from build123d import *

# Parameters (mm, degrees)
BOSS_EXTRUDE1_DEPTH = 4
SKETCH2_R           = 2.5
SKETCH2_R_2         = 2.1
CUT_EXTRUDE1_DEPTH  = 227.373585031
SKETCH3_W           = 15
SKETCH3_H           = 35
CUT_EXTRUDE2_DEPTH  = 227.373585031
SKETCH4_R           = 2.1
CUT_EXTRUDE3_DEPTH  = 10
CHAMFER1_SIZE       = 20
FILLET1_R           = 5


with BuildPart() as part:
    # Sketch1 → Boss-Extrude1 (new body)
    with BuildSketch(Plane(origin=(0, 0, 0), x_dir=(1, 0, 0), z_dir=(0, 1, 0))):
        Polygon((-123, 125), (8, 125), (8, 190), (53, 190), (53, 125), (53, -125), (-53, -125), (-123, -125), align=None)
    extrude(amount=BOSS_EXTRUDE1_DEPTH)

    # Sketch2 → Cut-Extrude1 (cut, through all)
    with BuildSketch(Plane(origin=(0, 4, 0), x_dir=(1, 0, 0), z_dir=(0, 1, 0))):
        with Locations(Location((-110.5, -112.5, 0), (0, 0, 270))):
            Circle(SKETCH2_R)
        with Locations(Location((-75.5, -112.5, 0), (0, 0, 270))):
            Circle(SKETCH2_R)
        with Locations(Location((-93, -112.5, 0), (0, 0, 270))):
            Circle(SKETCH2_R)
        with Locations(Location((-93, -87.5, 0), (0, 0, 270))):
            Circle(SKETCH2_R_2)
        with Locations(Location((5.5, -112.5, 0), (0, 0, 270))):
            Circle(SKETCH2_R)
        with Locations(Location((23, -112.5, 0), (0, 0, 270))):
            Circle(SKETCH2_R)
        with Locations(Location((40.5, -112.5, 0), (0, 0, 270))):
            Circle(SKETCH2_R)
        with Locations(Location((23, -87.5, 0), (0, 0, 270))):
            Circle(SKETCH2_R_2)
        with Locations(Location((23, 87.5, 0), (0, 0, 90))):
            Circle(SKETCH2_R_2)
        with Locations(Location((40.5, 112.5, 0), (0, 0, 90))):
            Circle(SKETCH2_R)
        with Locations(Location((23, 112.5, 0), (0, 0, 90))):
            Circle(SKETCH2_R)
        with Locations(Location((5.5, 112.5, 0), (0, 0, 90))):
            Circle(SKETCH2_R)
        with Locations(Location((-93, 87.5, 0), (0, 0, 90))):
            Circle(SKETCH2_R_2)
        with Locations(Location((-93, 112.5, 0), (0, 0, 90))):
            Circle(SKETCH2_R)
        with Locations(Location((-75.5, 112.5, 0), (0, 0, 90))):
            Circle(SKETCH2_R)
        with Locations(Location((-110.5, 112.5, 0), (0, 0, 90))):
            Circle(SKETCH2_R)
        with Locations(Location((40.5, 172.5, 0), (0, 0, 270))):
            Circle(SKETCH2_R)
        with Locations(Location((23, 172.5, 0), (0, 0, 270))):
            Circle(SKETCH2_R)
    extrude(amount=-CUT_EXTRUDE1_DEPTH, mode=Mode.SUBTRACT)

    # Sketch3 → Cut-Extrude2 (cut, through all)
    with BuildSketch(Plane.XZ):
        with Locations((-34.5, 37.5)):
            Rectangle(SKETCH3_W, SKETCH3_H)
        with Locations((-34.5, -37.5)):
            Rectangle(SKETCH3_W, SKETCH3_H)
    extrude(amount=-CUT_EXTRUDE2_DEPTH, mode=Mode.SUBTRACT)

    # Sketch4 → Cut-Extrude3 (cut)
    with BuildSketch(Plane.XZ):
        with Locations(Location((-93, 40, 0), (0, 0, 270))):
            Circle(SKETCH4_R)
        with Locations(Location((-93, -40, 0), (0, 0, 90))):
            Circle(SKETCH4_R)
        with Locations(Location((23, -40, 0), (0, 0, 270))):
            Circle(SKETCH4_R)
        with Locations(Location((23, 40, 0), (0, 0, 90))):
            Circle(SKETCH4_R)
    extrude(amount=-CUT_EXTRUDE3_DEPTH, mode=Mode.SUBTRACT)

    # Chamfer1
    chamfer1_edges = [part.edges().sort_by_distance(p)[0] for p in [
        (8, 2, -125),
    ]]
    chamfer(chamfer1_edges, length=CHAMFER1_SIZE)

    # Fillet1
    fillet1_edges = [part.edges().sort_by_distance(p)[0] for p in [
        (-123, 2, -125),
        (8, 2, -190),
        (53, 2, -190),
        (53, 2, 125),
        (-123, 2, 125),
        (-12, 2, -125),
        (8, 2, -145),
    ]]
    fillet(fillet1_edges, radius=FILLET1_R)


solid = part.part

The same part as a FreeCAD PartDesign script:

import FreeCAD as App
import Part
import Sketcher
from FreeCAD import Vector
Q = App.Units.Quantity


def edges_at(feature, points):
    """Names of the edges that pass closest to the given points."""
    edges = feature.Shape.Edges
    near = lambda p: min(range(len(edges)), key=lambda i: edges[i].distToShape(Part.Vertex(*p))[0])
    return sorted({f"Edge{near(p) + 1}" for p in points})

doc = App.newDocument("Part")
body = doc.addObject("PartDesign::Body", "Body")

sketch1 = doc.addObject("Sketcher::SketchObject", "Sketch")
body.addObject(sketch1)
sketch1.AttachmentSupport = (doc.XZ_Plane, [""])
sketch1.MapMode = "FlatFace"
sketch1.addGeometry(Part.LineSegment(Vector(8, -125, 0), Vector(-123, -125, 0)), False)
sketch1.addGeometry(Part.LineSegment(Vector(-123, -125, 0), Vector(-123, 125, 0)), False)
sketch1.addGeometry(Part.LineSegment(Vector(-123, 125, 0), Vector(53, 125, 0)), False)
sketch1.addGeometry(Part.LineSegment(Vector(53, 125, 0), Vector(53, -190, 0)), False)
sketch1.addGeometry(Part.LineSegment(Vector(53, -190, 0), Vector(8, -190, 0)), False)
sketch1.addGeometry(Part.LineSegment(Vector(8, -190, 0), Vector(8, -125, 0)), False)
sketch1.addConstraint(Sketcher.Constraint("Coincident", 0, 2, 1, 1))
sketch1.addConstraint(Sketcher.Constraint("Coincident", 1, 2, 2, 1))
sketch1.addConstraint(Sketcher.Constraint("Coincident", 2, 2, 3, 1))
sketch1.addConstraint(Sketcher.Constraint("Coincident", 3, 2, 4, 1))
sketch1.addConstraint(Sketcher.Constraint("Coincident", 4, 2, 5, 1))
sketch1.addConstraint(Sketcher.Constraint("Coincident", 5, 2, 0, 1))
sketch1.addConstraint(Sketcher.Constraint("Horizontal", 0))
sketch1.addConstraint(Sketcher.Constraint("Vertical", 1))
sketch1.addConstraint(Sketcher.Constraint("Horizontal", 2))
sketch1.addConstraint(Sketcher.Constraint("Vertical", 3))
sketch1.addConstraint(Sketcher.Constraint("Horizontal", 4))
sketch1.addConstraint(Sketcher.Constraint("Vertical", 5))
sketch1.addConstraint(Sketcher.Constraint("DistanceX", 0, 2, 0, 1, Q("131 mm")))
sketch1.addConstraint(Sketcher.Constraint("DistanceX", 2, 1, 2, 2, Q("176 mm")))
sketch1.addConstraint(Sketcher.Constraint("DistanceY", 1, 1, 1, 2, Q("250 mm")))
sketch1.addConstraint(Sketcher.Constraint("DistanceY", 3, 2, 3, 1, Q("315 mm")))
sketch1.addConstraint(Sketcher.Constraint("DistanceX", 0, 2, -1, 1, Q("123 mm")))
sketch1.addConstraint(Sketcher.Constraint("DistanceY", 0, 2, -1, 1, Q("125 mm")))
pad1 = doc.addObject("PartDesign::Pad", "Pad")
body.addObject(pad1)
pad1.Profile = sketch1
pad1.Length = 4
pad1.Reversed = True

sketch2 = doc.addObject("Sketcher::SketchObject", "Sketch001")
body.addObject(sketch2)
sketch2.AttachmentSupport = (doc.XZ_Plane, [""])
sketch2.MapMode = "FlatFace"
sketch2.AttachmentOffset = App.Placement(Vector(0, 0, -4), App.Rotation())
sketch2.addGeometry(Part.Circle(Vector(-110.5, 112.5, 0), Vector(0, 0, 1), 2.5), False)
sketch2.addGeometry(Part.Circle(Vector(-75.5, 112.5, 0), Vector(0, 0, 1), 2.5), False)
sketch2.addGeometry(Part.Circle(Vector(-93, 112.5, 0), Vector(0, 0, 1), 2.5), False)
sketch2.addGeometry(Part.Circle(Vector(-93, 87.5, 0), Vector(0, 0, 1), 2.1), False)
sketch2.addGeometry(Part.Circle(Vector(5.5, 112.5, 0), Vector(0, 0, 1), 2.5), False)
sketch2.addGeometry(Part.Circle(Vector(23, 112.5, 0), Vector(0, 0, 1), 2.5), False)
sketch2.addGeometry(Part.Circle(Vector(40.5, 112.5, 0), Vector(0, 0, 1), 2.5), False)
sketch2.addGeometry(Part.Circle(Vector(23, 87.5, 0), Vector(0, 0, 1), 2.1), False)
sketch2.addGeometry(Part.Circle(Vector(23, -87.5, 0), Vector(0, 0, 1), 2.1), False)
sketch2.addGeometry(Part.Circle(Vector(40.5, -112.5, 0), Vector(0, 0, 1), 2.5), False)
sketch2.addGeometry(Part.Circle(Vector(23, -112.5, 0), Vector(0, 0, 1), 2.5), False)
sketch2.addGeometry(Part.Circle(Vector(5.5, -112.5, 0), Vector(0, 0, 1), 2.5), False)
sketch2.addGeometry(Part.Circle(Vector(-93, -87.5, 0), Vector(0, 0, 1), 2.1), False)
sketch2.addGeometry(Part.Circle(Vector(-93, -112.5, 0), Vector(0, 0, 1), 2.5), False)
sketch2.addGeometry(Part.Circle(Vector(-75.5, -112.5, 0), Vector(0, 0, 1), 2.5), False)
sketch2.addGeometry(Part.Circle(Vector(-110.5, -112.5, 0), Vector(0, 0, 1), 2.5), False)
sketch2.addGeometry(Part.Circle(Vector(40.5, -172.5, 0), Vector(0, 0, 1), 2.5), False)
sketch2.addGeometry(Part.Circle(Vector(23, -172.5, 0), Vector(0, 0, 1), 2.5), False)
sketch2.addConstraint(Sketcher.Constraint("Equal", 0, 1))
sketch2.addConstraint(Sketcher.Constraint("Equal", 1, 2))
sketch2.addConstraint(Sketcher.Constraint("Equal", 2, 4))
sketch2.addConstraint(Sketcher.Constraint("Equal", 4, 5))
sketch2.addConstraint(Sketcher.Constraint("Equal", 5, 6))
sketch2.addConstraint(Sketcher.Constraint("Equal", 3, 7))
sketch2.addConstraint(Sketcher.Constraint("Equal", 7, 8))
sketch2.addConstraint(Sketcher.Constraint("Equal", 6, 9))
sketch2.addConstraint(Sketcher.Constraint("Equal", 9, 10))
sketch2.addConstraint(Sketcher.Constraint("Equal", 10, 11))
sketch2.addConstraint(Sketcher.Constraint("Equal", 8, 12))
sketch2.addConstraint(Sketcher.Constraint("Equal", 11, 13))
sketch2.addConstraint(Sketcher.Constraint("Equal", 13, 14))
sketch2.addConstraint(Sketcher.Constraint("Equal", 14, 15))
sketch2.addConstraint(Sketcher.Constraint("Equal", 15, 16))
sketch2.addConstraint(Sketcher.Constraint("Equal", 16, 17))
sketch2.addConstraint(Sketcher.Constraint("Symmetric", 7, 3, 8, 3, -1))
sketch2.addConstraint(Sketcher.Constraint("Symmetric", 6, 3, 9, 3, -1))
sketch2.addConstraint(Sketcher.Constraint("Symmetric", 5, 3, 10, 3, -1))
sketch2.addConstraint(Sketcher.Constraint("Symmetric", 4, 3, 11, 3, -1))
sketch2.addConstraint(Sketcher.Constraint("Symmetric", 3, 3, 12, 3, -1))
sketch2.addConstraint(Sketcher.Constraint("Symmetric", 2, 3, 13, 3, -1))
sketch2.addConstraint(Sketcher.Constraint("Symmetric", 1, 3, 14, 3, -1))
sketch2.addConstraint(Sketcher.Constraint("Symmetric", 0, 3, 15, 3, -1))
sketch2.addConstraint(Sketcher.Constraint("Horizontal", 0, 3, 1, 3))
sketch2.addConstraint(Sketcher.Constraint("Horizontal", 1, 3, 2, 3))
sketch2.addConstraint(Sketcher.Constraint("Horizontal", 2, 3, 4, 3))
sketch2.addConstraint(Sketcher.Constraint("Horizontal", 4, 3, 5, 3))
sketch2.addConstraint(Sketcher.Constraint("Horizontal", 5, 3, 6, 3))
sketch2.addConstraint(Sketcher.Constraint("Horizontal", 3, 3, 7, 3))
sketch2.addConstraint(Sketcher.Constraint("Horizontal", 16, 3, 17, 3))
sketch2.addConstraint(Sketcher.Constraint("Vertical", 2, 3, 3, 3))
sketch2.addConstraint(Sketcher.Constraint("Vertical", 5, 3, 7, 3))
sketch2.addConstraint(Sketcher.Constraint("Vertical", 9, 3, 16, 3))
sketch2.addConstraint(Sketcher.Constraint("Vertical", 10, 3, 17, 3))
sketch2.addConstraint(Sketcher.Constraint("Diameter", 0, Q("5 mm")))
sketch2.addConstraint(Sketcher.Constraint("Diameter", 3, Q("4.2 mm")))
sketch2.addConstraint(Sketcher.Constraint("DistanceX", 2, 3, -1, 1, Q("93 mm")))
sketch2.addConstraint(Sketcher.Constraint("DistanceX", -1, 1, 5, 3, Q("23 mm")))
sketch2.addConstraint(Sketcher.Constraint("DistanceX", 0, 3, 1, 3, Q("35 mm")))
sketch2.addConstraint(Sketcher.Constraint("DistanceY", 3, 3, 2, 3, Q("25 mm")))
sketch2.addConstraint(Sketcher.Constraint("DistanceX", 1, 3, 4, 3, Q("81 mm")))
sketch2.addConstraint(Sketcher.Constraint("DistanceX", 4, 3, 6, 3, Q("35 mm")))
sketch2.addConstraint(Sketcher.Constraint("DistanceY", 8, 3, 7, 3, Q("175 mm")))
sketch2.addConstraint(Sketcher.Constraint("DistanceY", 16, 3, 9, 3, Q("60 mm")))
sketch2.addConstraint(Sketcher.Constraint("DistanceX", 0, 3, -1, 1, Q("110.5 mm")))
pocket1 = doc.addObject("PartDesign::Pocket", "Pocket")
body.addObject(pocket1)
pocket1.Profile = sketch2
pocket1.Type = "ThroughAll"
pocket1.Reversed = True

sketch3 = doc.addObject("Sketcher::SketchObject", "Sketch002")
body.addObject(sketch3)
sketch3.AttachmentSupport = (doc.XZ_Plane, [""])
sketch3.MapMode = "FlatFace"
sketch3.addGeometry(Part.LineSegment(Vector(-42, 55, 0), Vector(-42, 20, 0)), False)
sketch3.addGeometry(Part.LineSegment(Vector(-42, 20, 0), Vector(-27, 20, 0)), False)
sketch3.addGeometry(Part.LineSegment(Vector(-27, 20, 0), Vector(-27, 55, 0)), False)
sketch3.addGeometry(Part.LineSegment(Vector(-27, 55, 0), Vector(-42, 55, 0)), False)
sketch3.addGeometry(Part.LineSegment(Vector(-42, -20, 0), Vector(-42, -55, 0)), False)
sketch3.addGeometry(Part.LineSegment(Vector(-42, -55, 0), Vector(-27, -55, 0)), False)
sketch3.addGeometry(Part.LineSegment(Vector(-27, -55, 0), Vector(-27, -20, 0)), False)
sketch3.addGeometry(Part.LineSegment(Vector(-27, -20, 0), Vector(-42, -20, 0)), False)
sketch3.addConstraint(Sketcher.Constraint("Coincident", 0, 2, 1, 1))
sketch3.addConstraint(Sketcher.Constraint("Coincident", 1, 2, 2, 1))
sketch3.addConstraint(Sketcher.Constraint("Coincident", 2, 2, 3, 1))
sketch3.addConstraint(Sketcher.Constraint("Coincident", 3, 2, 0, 1))
sketch3.addConstraint(Sketcher.Constraint("Coincident", 4, 2, 5, 1))
sketch3.addConstraint(Sketcher.Constraint("Coincident", 5, 2, 6, 1))
sketch3.addConstraint(Sketcher.Constraint("Coincident", 6, 2, 7, 1))
sketch3.addConstraint(Sketcher.Constraint("Coincident", 7, 2, 4, 1))
sketch3.addConstraint(Sketcher.Constraint("Vertical", 0))
sketch3.addConstraint(Sketcher.Constraint("Horizontal", 1))
sketch3.addConstraint(Sketcher.Constraint("Vertical", 2))
sketch3.addConstraint(Sketcher.Constraint("Horizontal", 3))
sketch3.addConstraint(Sketcher.Constraint("Vertical", 4))
sketch3.addConstraint(Sketcher.Constraint("Horizontal", 5))
sketch3.addConstraint(Sketcher.Constraint("Vertical", 6))
sketch3.addConstraint(Sketcher.Constraint("Horizontal", 7))
sketch3.addConstraint(Sketcher.Constraint("Symmetric", 3, 2, 4, 2, -1))
sketch3.addConstraint(Sketcher.Constraint("Symmetric", 1, 2, 6, 2, -1))
sketch3.addConstraint(Sketcher.Constraint("DistanceX", 1, 1, 1, 2, Q("15 mm")))
sketch3.addConstraint(Sketcher.Constraint("DistanceY", 0, 2, 0, 1, Q("35 mm")))
sketch3.addConstraint(Sketcher.Constraint("DistanceX", 0, 2, -1, 1, Q("42 mm")))
sketch3.addConstraint(Sketcher.Constraint("DistanceY", -1, 1, 0, 2, Q("20 mm")))
pocket2 = doc.addObject("PartDesign::Pocket", "Pocket001")
body.addObject(pocket2)
pocket2.Profile = sketch3
pocket2.Type = "ThroughAll"

sketch4 = doc.addObject("Sketcher::SketchObject", "Sketch003")
body.addObject(sketch4)
sketch4.AttachmentSupport = (doc.XZ_Plane, [""])
sketch4.MapMode = "FlatFace"
sketch4.addGeometry(Part.Circle(Vector(-93, 40, 0), Vector(0, 0, 1), 2.1), False)
sketch4.addGeometry(Part.Circle(Vector(-93, -40, 0), Vector(0, 0, 1), 2.1), False)
sketch4.addGeometry(Part.Circle(Vector(23, -40, 0), Vector(0, 0, 1), 2.1), False)
sketch4.addGeometry(Part.Circle(Vector(23, 40, 0), Vector(0, 0, 1), 2.1), False)
sketch4.addConstraint(Sketcher.Constraint("Equal", 0, 1))
sketch4.addConstraint(Sketcher.Constraint("Equal", 1, 2))
sketch4.addConstraint(Sketcher.Constraint("Equal", 2, 3))
sketch4.addConstraint(Sketcher.Constraint("Symmetric", 0, 3, 1, 3, -1))
sketch4.addConstraint(Sketcher.Constraint("Symmetric", 2, 3, 3, 3, -1))
sketch4.addConstraint(Sketcher.Constraint("Horizontal", 1, 3, 2, 3))
sketch4.addConstraint(Sketcher.Constraint("Diameter", 0, Q("4.2 mm")))
sketch4.addConstraint(Sketcher.Constraint("DistanceX", 0, 3, -1, 1, Q("93 mm")))
sketch4.addConstraint(Sketcher.Constraint("DistanceY", -1, 1, 0, 3, Q("40 mm")))
sketch4.addConstraint(Sketcher.Constraint("DistanceX", -1, 1, 2, 3, Q("23 mm")))
pocket3 = doc.addObject("PartDesign::Pocket", "Pocket002")
body.addObject(pocket3)
pocket3.Profile = sketch4
pocket3.Length = 10
doc.recompute()

chamfer = doc.addObject("PartDesign::Chamfer", "Chamfer")
body.addObject(chamfer)
chamfer.Base = (pocket3, edges_at(pocket3, [(8, 2, -125)]))
chamfer.Size = 20
doc.recompute()

fillet = doc.addObject("PartDesign::Fillet", "Fillet")
body.addObject(fillet)
fillet.Base = (chamfer, edges_at(chamfer, [
    (-123, 2, -125),
    (8, 2, -190),
    (53, 2, -190),
    (53, 2, 125),
    (-123, 2, 125),
    (-12, 2, -125),
    (8, 2, -145),
]))
fillet.Radius = 5

doc.recompute()
